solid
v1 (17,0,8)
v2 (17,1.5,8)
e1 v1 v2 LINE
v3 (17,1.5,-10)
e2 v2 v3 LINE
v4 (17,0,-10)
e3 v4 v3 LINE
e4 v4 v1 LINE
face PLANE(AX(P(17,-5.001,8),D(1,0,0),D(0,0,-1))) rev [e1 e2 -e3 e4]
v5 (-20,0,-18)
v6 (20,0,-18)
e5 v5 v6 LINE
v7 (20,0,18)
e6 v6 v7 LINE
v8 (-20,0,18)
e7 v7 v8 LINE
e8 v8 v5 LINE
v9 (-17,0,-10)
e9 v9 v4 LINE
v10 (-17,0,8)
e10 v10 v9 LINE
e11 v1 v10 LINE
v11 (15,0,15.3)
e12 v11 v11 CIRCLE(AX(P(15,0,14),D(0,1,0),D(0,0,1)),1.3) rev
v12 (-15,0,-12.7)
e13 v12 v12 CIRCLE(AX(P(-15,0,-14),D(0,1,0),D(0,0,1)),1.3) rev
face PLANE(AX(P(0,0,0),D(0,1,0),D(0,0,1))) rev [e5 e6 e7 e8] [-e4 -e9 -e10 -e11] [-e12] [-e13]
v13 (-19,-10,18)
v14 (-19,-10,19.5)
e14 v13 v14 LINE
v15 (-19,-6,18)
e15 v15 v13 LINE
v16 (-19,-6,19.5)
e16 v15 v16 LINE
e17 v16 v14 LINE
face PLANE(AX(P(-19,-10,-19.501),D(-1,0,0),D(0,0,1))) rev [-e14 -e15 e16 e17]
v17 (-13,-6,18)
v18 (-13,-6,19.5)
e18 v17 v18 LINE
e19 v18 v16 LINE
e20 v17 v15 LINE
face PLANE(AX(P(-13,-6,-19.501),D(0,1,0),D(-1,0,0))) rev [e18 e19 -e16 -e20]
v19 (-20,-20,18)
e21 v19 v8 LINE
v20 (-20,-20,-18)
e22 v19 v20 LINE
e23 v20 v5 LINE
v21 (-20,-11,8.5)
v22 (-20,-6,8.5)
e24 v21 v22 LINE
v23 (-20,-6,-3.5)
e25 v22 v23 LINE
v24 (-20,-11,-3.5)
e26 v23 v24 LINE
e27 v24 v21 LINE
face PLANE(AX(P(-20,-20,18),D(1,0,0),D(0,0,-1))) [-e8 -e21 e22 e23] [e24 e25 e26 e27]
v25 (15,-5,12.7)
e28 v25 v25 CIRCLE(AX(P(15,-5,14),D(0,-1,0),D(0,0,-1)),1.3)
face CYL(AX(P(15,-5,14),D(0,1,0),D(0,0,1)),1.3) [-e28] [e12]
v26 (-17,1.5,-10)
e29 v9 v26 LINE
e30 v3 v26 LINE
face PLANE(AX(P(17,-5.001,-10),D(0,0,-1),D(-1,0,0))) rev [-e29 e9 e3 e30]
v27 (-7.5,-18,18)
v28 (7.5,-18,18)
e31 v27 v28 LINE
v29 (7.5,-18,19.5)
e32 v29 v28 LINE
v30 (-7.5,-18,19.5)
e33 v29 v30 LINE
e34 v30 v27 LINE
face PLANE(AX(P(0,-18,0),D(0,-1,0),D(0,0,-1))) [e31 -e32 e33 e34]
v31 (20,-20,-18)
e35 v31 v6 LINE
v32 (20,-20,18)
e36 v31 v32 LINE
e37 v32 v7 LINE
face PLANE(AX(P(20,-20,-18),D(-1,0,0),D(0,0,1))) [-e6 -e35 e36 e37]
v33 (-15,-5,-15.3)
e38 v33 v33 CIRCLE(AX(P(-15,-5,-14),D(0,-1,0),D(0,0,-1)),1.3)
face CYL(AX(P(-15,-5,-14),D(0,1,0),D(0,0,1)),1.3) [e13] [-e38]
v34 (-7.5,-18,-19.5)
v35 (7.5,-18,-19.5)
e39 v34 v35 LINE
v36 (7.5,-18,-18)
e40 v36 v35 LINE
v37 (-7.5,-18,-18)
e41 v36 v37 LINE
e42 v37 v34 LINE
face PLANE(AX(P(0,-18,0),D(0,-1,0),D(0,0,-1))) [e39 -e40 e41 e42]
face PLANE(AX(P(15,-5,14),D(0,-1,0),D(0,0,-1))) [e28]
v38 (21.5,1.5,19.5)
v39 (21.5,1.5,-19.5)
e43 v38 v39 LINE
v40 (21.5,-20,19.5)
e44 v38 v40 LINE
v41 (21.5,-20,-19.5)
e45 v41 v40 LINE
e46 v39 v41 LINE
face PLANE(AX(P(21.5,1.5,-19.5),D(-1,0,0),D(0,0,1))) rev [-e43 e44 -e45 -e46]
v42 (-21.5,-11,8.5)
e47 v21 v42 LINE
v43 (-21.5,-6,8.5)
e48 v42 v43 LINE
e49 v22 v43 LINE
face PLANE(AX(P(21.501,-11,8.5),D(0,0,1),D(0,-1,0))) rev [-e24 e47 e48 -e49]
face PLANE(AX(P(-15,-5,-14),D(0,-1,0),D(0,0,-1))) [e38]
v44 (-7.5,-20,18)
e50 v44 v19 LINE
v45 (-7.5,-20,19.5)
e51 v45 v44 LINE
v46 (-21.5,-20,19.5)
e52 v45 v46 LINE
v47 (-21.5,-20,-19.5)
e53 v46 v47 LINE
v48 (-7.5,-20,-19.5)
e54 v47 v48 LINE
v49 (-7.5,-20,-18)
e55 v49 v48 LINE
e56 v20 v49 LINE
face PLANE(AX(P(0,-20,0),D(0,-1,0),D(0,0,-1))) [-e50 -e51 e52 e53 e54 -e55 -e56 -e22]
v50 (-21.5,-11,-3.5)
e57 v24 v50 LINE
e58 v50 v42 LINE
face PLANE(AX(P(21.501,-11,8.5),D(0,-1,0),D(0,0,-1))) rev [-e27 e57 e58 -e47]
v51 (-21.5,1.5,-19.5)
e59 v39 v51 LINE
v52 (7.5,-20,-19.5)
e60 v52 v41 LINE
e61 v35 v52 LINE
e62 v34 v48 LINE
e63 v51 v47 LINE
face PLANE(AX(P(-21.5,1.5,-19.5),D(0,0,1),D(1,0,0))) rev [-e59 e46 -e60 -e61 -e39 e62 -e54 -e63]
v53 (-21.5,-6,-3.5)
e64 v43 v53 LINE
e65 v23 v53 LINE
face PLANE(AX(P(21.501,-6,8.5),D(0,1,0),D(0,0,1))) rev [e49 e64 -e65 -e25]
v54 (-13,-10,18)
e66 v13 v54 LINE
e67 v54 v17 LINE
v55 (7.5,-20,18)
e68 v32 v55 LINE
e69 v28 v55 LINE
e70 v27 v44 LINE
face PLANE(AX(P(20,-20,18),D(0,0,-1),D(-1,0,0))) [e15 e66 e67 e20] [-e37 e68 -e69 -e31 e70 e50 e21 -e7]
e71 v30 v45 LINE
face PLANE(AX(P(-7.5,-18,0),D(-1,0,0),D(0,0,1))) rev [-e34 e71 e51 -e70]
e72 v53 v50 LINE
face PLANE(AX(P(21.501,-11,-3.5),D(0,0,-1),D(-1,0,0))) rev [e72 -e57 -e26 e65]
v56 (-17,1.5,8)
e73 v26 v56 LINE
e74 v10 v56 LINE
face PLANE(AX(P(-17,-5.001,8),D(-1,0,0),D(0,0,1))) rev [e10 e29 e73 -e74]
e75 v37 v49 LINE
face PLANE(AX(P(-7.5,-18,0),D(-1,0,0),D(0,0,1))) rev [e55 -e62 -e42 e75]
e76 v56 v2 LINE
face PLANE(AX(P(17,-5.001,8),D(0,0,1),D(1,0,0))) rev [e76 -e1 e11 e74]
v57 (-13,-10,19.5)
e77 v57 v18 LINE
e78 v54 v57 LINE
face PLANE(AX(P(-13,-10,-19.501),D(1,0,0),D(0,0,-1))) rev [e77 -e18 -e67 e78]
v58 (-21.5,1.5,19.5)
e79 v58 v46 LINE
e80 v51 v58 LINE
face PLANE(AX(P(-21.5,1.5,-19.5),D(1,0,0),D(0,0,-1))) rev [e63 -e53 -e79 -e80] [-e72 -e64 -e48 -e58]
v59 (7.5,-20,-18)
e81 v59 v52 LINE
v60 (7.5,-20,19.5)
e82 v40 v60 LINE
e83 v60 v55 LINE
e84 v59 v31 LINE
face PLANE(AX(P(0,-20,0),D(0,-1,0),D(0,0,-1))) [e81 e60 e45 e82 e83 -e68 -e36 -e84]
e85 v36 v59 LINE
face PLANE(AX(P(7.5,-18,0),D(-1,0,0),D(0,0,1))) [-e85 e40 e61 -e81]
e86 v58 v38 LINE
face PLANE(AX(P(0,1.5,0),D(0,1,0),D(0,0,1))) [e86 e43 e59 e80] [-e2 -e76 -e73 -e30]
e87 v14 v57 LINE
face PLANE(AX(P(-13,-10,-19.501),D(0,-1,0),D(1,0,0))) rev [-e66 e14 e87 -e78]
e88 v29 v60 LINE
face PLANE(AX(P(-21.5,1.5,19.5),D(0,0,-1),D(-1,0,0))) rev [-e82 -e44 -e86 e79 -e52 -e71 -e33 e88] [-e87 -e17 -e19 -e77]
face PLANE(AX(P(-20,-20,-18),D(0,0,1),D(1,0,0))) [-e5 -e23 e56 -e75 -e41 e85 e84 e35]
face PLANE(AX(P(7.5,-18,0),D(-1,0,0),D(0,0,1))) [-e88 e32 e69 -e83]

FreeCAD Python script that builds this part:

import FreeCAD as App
import Part
import Sketcher
from FreeCAD import Vector

doc = App.newDocument("Part")
body = doc.addObject("PartDesign::Body", "Body")

# Sketch on XZ plane
sketch1 = doc.addObject("Sketcher::SketchObject", "Sketch")
body.addObject(sketch1)
sketch1.AttachmentSupport = (doc.XZ_Plane, [""])
sketch1.MapMode = "FlatFace"
sketch1.addGeometry([
    Part.LineSegment(Vector(-22, -20, 0), Vector(-22, 20, 0)),
    Part.LineSegment(Vector(-22, 20, 0), Vector(22, 20, 0)),
    Part.LineSegment(Vector(22, 20, 0), Vector(22, -20, 0)),
    Part.LineSegment(Vector(22, -20, 0), Vector(-22, -20, 0)),
], False)
sketch1.addConstraint([
    Sketcher.Constraint("Coincident", 0, 2, 1, 1),
    Sketcher.Constraint("Coincident", 1, 2, 2, 1),
    Sketcher.Constraint("Coincident", 2, 2, 3, 1),
    Sketcher.Constraint("Coincident", 3, 2, 0, 1),
    Sketcher.Constraint("Vertical", 0),
    Sketcher.Constraint("Horizontal", 1),
    Sketcher.Constraint("Vertical", 2),
    Sketcher.Constraint("Horizontal", 3),
    Sketcher.Constraint("Symmetric", 0, 2, 2, 2, -1, 1),
    Sketcher.Constraint("DistanceX", 1, 1, 1, 2, 43.0),
    Sketcher.Constraint("DistanceY", 0, 1, 0, 2, 39.0),
])
pad1 = doc.addObject("PartDesign::Pad", "Pad")
body.addObject(pad1)
pad1.Profile = sketch1
pad1.Length = 1.5
pad1.Reversed = True

# Sketch on XZ plane
sketch2 = doc.addObject("Sketcher::SketchObject", "Sketch001")
body.addObject(sketch2)
sketch2.AttachmentSupport = (doc.XZ_Plane, [""])
sketch2.MapMode = "FlatFace"
sketch2.addGeometry([
    Part.Circle(Vector(15, 14, 0), Vector(0, 0, 1), 1.3),
    Part.Circle(Vector(-15, -14, 0), Vector(0, 0, 1), 1.3),
], False)
sketch2.addConstraint([
    Sketcher.Constraint("Equal", 0, 1),
    Sketcher.Constraint("Symmetric", 0, 3, 1, 3, -1, 1),
    Sketcher.Constraint("Diameter", 0, 2.6),
    Sketcher.Constraint("DistanceX", -1, 1, 0, 3, 15.0),
    Sketcher.Constraint("DistanceY", -1, 1, 0, 3, 14.0),
])
pad2 = doc.addObject("PartDesign::Pad", "Pad001")
body.addObject(pad2)
pad2.Profile = sketch2
pad2.Length = 5

# Sketch on XZ plane
sketch3 = doc.addObject("Sketcher::SketchObject", "Sketch002")
body.addObject(sketch3)
sketch3.AttachmentSupport = (doc.XZ_Plane, [""])
sketch3.MapMode = "FlatFace"
sketch3.AttachmentOffset = App.Placement(Vector(0, 0, -1.5), App.Rotation())
sketch3.addGeometry([
    Part.LineSegment(Vector(-17, -10, 0), Vector(-17, 8, 0)),
    Part.LineSegment(Vector(-17, 8, 0), Vector(17, 8, 0)),
    Part.LineSegment(Vector(17, 8, 0), Vector(17, -10, 0)),
    Part.LineSegment(Vector(17, -10, 0), Vector(-17, -10, 0)),
], False)
sketch3.addConstraint([
    Sketcher.Constraint("Coincident", 0, 2, 1, 1),
    Sketcher.Constraint("Coincident", 1, 2, 2, 1),
    Sketcher.Constraint("Coincident", 2, 2, 3, 1),
    Sketcher.Constraint("Coincident", 3, 2, 0, 1),
    Sketcher.Constraint("Vertical", 0),
    Sketcher.Constraint("Horizontal", 1),
    Sketcher.Constraint("Vertical", 2),
    Sketcher.Constraint("Horizontal", 3),
    Sketcher.Constraint("DistanceX", 1, 1, 1, 2, 34.0),
    Sketcher.Constraint("DistanceY", 0, 1, 0, 2, 18.0),
    Sketcher.Constraint("DistanceX", 0, 2, -1, 1, 17.0),
    Sketcher.Constraint("DistanceY", -1, 1, 0, 2, 8.0),
])
pocket1 = doc.addObject("PartDesign::Pocket", "Pocket")
body.addObject(pocket1)
pocket1.Profile = sketch3
pocket1.Type = "UpToFirst"
pocket1.Reversed = True

# Sketch on XZ plane
sketch4 = doc.addObject("Sketcher::SketchObject", "Sketch003")
body.addObject(sketch4)
sketch4.AttachmentSupport = (doc.XZ_Plane, [""])
sketch4.MapMode = "FlatFace"
sketch4.addGeometry([
    Part.LineSegment(Vector(-22, 20, 0), Vector(-22, -20, 0)),  # 0
    Part.LineSegment(Vector(-22, -20, 0), Vector(22, -20, 0)),  # 1
    Part.LineSegment(Vector(22, -20, 0), Vector(22, 20, 0)),  # 2
    Part.LineSegment(Vector(22, 20, 0), Vector(-22, 20, 0)),  # 3
    Part.LineSegment(Vector(20, -18, 0), Vector(-20, -18, 0)),  # 4
    Part.LineSegment(Vector(-20, -18, 0), Vector(-20, 18, 0)),  # 5
    Part.LineSegment(Vector(-20, 18, 0), Vector(20, 18, 0)),  # 6
    Part.LineSegment(Vector(20, 18, 0), Vector(20, -18, 0)),  # 7
], False)
sketch4.addConstraint([
    Sketcher.Constraint("Coincident", 0, 2, 1, 1),
    Sketcher.Constraint("Coincident", 1, 2, 2, 1),
    Sketcher.Constraint("Coincident", 2, 2, 3, 1),
    Sketcher.Constraint("Coincident", 3, 2, 0, 1),
    Sketcher.Constraint("Coincident", 4, 2, 5, 1),
    Sketcher.Constraint("Coincident", 5, 2, 6, 1),
    Sketcher.Constraint("Coincident", 6, 2, 7, 1),
    Sketcher.Constraint("Coincident", 7, 2, 4, 1),
    Sketcher.Constraint("Vertical", 0),
    Sketcher.Constraint("Horizontal", 1),
    Sketcher.Constraint("Vertical", 2),
    Sketcher.Constraint("Horizontal", 3),
    Sketcher.Constraint("Horizontal", 4),
    Sketcher.Constraint("Vertical", 5),
    Sketcher.Constraint("Horizontal", 6),
    Sketcher.Constraint("Vertical", 7),
    Sketcher.Constraint("Symmetric", 0, 2, 2, 2, -1, 1),
    Sketcher.Constraint("Symmetric", 4, 2, 6, 2, -1, 1),
    Sketcher.Constraint("DistanceX", 1, 1, 1, 2, 43.0),
    Sketcher.Constraint("DistanceX", 4, 2, 4, 1, 40.0),
    Sketcher.Constraint("DistanceY", 0, 2, 0, 1, 39.0),
    Sketcher.Constraint("DistanceY", 5, 1, 5, 2, 36.0),
])
pad3 = doc.addObject("PartDesign::Pad", "Pad002")
body.addObject(pad3)
pad3.Profile = sketch4
pad3.Length = 20

# Sketch on YZ plane
sketch5 = doc.addObject("Sketcher::SketchObject", "Sketch004")
body.addObject(sketch5)
sketch5.AttachmentSupport = (doc.YZ_Plane, [""])
sketch5.MapMode = "FlatFace"
sketch5.AttachmentOffset = App.Placement(Vector(0, 0, -21.5), App.Rotation())
sketch5.addGeometry([
    Part.LineSegment(Vector(-6, -4, 0), Vector(-11, -4, 0)),
    Part.LineSegment(Vector(-11, -4, 0), Vector(-11, 8, 0)),
    Part.LineSegment(Vector(-11, 8, 0), Vector(-6, 8, 0)),
    Part.LineSegment(Vector(-6, 8, 0), Vector(-6, -4, 0)),
], False)
sketch5.addConstraint([
    Sketcher.Constraint("Coincident", 0, 2, 1, 1),
    Sketcher.Constraint("Coincident", 1, 2, 2, 1),
    Sketcher.Constraint("Coincident", 2, 2, 3, 1),
    Sketcher.Constraint("Coincident", 3, 2, 0, 1),
    Sketcher.Constraint("Horizontal", 0),
    Sketcher.Constraint("Vertical", 1),
    Sketcher.Constraint("Horizontal", 2),
    Sketcher.Constraint("Vertical", 3),
    Sketcher.Constraint("DistanceX", 0, 2, 0, 1, 5.0),
    Sketcher.Constraint("DistanceY", 1, 1, 1, 2, 12.0),
    Sketcher.Constraint("DistanceX", 0, 2, -1, 1, 11.0),
    Sketcher.Constraint("DistanceY", 0, 2, -1, 1, 3.5),
])
pocket2 = doc.addObject("PartDesign::Pocket", "Pocket001")
body.addObject(pocket2)
pocket2.Profile = sketch5
pocket2.Type = "UpToFirst"
pocket2.Reversed = True

# Sketch on XY plane
sketch6 = doc.addObject("Sketcher::SketchObject", "Sketch005")
body.addObject(sketch6)
sketch6.AttachmentSupport = (doc.XY_Plane, [""])
sketch6.MapMode = "FlatFace"
sketch6.AttachmentOffset = App.Placement(Vector(0, 0, 19.5), App.Rotation())
sketch6.addGeometry([
    Part.LineSegment(Vector(-19, -6, 0), Vector(-19, -10, 0)),
    Part.LineSegment(Vector(-19, -10, 0), Vector(-13, -10, 0)),
    Part.LineSegment(Vector(-13, -10, 0), Vector(-13, -6, 0)),
    Part.LineSegment(Vector(-13, -6, 0), Vector(-19, -6, 0)),
], False)
sketch6.addConstraint([
    Sketcher.Constraint("Coincident", 0, 2, 1, 1),
    Sketcher.Constraint("Coincident", 1, 2, 2, 1),
    Sketcher.Constraint("Coincident", 2, 2, 3, 1),
    Sketcher.Constraint("Coincident", 3, 2, 0, 1),
    Sketcher.Constraint("Vertical", 0),
    Sketcher.Constraint("Horizontal", 1),
    Sketcher.Constraint("Vertical", 2),
    Sketcher.Constraint("Horizontal", 3),
    Sketcher.Constraint("DistanceX", 1, 1, 1, 2, 6.0),
    Sketcher.Constraint("DistanceY", 0, 2, 0, 1, 4.0),
    Sketcher.Constraint("DistanceX", 0, 2, -1, 1, 19.0),
    Sketcher.Constraint("DistanceY", 0, 2, -1, 1, 10.0),
])
pocket3 = doc.addObject("PartDesign::Pocket", "Pocket002")
body.addObject(pocket3)
pocket3.Profile = sketch6
pocket3.Type = "UpToFirst"

# Sketch on XZ plane
sketch7 = doc.addObject("Sketcher::SketchObject", "Sketch006")
body.addObject(sketch7)
sketch7.AttachmentSupport = (doc.XZ_Plane, [""])
sketch7.MapMode = "FlatFace"
sketch7.AttachmentOffset = App.Placement(Vector(0, 0, 20), App.Rotation())
sketch7.addGeometry([
    Part.LineSegment(Vector(-7.5, -18, 0), Vector(-7.5, -19.5, 0)),  # 0
    Part.LineSegment(Vector(-7.5, -19.5, 0), Vector(7.5, -19.5, 0)),  # 1
    Part.LineSegment(Vector(7.5, -19.5, 0), Vector(7.5, -18, 0)),  # 2
    Part.LineSegment(Vector(7.5, -18, 0), Vector(-7.5, -18, 0)),  # 3
    Part.LineSegment(Vector(-7.5, 19.5, 0), Vector(-7.5, 18, 0)),  # 4
    Part.LineSegment(Vector(-7.5, 18, 0), Vector(7.5, 18, 0)),  # 5
    Part.LineSegment(Vector(7.5, 18, 0), Vector(7.5, 19.5, 0)),  # 6
    Part.LineSegment(Vector(7.5, 19.5, 0), Vector(-7.5, 19.5, 0)),  # 7
], False)
sketch7.addConstraint([
    Sketcher.Constraint("Coincident", 0, 2, 1, 1),
    Sketcher.Constraint("Coincident", 1, 2, 2, 1),
    Sketcher.Constraint("Coincident", 2, 2, 3, 1),
    Sketcher.Constraint("Coincident", 3, 2, 0, 1),
    Sketcher.Constraint("Coincident", 4, 2, 5, 1),
    Sketcher.Constraint("Coincident", 5, 2, 6, 1),
    Sketcher.Constraint("Coincident", 6, 2, 7, 1),
    Sketcher.Constraint("Coincident", 7, 2, 4, 1),
    Sketcher.Constraint("Vertical", 0),
    Sketcher.Constraint("Horizontal", 1),
    Sketcher.Constraint("Vertical", 2),
    Sketcher.Constraint("Horizontal", 3),
    Sketcher.Constraint("Vertical", 4),
    Sketcher.Constraint("Horizontal", 5),
    Sketcher.Constraint("Vertical", 6),
    Sketcher.Constraint("Horizontal", 7),
    Sketcher.Constraint("Symmetric", 2, 2, 4, 2, -1, 1),
    Sketcher.Constraint("Symmetric", 0, 2, 6, 2, -1, 1),
    Sketcher.Constraint("Vertical", 3, 2, 4, 2),
    Sketcher.Constraint("DistanceX", 1, 1, 1, 2, 15.0),
    Sketcher.Constraint("DistanceY", 0, 2, 0, 1, 1.5),
    Sketcher.Constraint("DistanceY", 2, 2, -1, 1, 18.0),
])
pocket4 = doc.addObject("PartDesign::Pocket", "Pocket003")
body.addObject(pocket4)
pocket4.Profile = sketch7
pocket4.Length = 2

doc.recompute()
